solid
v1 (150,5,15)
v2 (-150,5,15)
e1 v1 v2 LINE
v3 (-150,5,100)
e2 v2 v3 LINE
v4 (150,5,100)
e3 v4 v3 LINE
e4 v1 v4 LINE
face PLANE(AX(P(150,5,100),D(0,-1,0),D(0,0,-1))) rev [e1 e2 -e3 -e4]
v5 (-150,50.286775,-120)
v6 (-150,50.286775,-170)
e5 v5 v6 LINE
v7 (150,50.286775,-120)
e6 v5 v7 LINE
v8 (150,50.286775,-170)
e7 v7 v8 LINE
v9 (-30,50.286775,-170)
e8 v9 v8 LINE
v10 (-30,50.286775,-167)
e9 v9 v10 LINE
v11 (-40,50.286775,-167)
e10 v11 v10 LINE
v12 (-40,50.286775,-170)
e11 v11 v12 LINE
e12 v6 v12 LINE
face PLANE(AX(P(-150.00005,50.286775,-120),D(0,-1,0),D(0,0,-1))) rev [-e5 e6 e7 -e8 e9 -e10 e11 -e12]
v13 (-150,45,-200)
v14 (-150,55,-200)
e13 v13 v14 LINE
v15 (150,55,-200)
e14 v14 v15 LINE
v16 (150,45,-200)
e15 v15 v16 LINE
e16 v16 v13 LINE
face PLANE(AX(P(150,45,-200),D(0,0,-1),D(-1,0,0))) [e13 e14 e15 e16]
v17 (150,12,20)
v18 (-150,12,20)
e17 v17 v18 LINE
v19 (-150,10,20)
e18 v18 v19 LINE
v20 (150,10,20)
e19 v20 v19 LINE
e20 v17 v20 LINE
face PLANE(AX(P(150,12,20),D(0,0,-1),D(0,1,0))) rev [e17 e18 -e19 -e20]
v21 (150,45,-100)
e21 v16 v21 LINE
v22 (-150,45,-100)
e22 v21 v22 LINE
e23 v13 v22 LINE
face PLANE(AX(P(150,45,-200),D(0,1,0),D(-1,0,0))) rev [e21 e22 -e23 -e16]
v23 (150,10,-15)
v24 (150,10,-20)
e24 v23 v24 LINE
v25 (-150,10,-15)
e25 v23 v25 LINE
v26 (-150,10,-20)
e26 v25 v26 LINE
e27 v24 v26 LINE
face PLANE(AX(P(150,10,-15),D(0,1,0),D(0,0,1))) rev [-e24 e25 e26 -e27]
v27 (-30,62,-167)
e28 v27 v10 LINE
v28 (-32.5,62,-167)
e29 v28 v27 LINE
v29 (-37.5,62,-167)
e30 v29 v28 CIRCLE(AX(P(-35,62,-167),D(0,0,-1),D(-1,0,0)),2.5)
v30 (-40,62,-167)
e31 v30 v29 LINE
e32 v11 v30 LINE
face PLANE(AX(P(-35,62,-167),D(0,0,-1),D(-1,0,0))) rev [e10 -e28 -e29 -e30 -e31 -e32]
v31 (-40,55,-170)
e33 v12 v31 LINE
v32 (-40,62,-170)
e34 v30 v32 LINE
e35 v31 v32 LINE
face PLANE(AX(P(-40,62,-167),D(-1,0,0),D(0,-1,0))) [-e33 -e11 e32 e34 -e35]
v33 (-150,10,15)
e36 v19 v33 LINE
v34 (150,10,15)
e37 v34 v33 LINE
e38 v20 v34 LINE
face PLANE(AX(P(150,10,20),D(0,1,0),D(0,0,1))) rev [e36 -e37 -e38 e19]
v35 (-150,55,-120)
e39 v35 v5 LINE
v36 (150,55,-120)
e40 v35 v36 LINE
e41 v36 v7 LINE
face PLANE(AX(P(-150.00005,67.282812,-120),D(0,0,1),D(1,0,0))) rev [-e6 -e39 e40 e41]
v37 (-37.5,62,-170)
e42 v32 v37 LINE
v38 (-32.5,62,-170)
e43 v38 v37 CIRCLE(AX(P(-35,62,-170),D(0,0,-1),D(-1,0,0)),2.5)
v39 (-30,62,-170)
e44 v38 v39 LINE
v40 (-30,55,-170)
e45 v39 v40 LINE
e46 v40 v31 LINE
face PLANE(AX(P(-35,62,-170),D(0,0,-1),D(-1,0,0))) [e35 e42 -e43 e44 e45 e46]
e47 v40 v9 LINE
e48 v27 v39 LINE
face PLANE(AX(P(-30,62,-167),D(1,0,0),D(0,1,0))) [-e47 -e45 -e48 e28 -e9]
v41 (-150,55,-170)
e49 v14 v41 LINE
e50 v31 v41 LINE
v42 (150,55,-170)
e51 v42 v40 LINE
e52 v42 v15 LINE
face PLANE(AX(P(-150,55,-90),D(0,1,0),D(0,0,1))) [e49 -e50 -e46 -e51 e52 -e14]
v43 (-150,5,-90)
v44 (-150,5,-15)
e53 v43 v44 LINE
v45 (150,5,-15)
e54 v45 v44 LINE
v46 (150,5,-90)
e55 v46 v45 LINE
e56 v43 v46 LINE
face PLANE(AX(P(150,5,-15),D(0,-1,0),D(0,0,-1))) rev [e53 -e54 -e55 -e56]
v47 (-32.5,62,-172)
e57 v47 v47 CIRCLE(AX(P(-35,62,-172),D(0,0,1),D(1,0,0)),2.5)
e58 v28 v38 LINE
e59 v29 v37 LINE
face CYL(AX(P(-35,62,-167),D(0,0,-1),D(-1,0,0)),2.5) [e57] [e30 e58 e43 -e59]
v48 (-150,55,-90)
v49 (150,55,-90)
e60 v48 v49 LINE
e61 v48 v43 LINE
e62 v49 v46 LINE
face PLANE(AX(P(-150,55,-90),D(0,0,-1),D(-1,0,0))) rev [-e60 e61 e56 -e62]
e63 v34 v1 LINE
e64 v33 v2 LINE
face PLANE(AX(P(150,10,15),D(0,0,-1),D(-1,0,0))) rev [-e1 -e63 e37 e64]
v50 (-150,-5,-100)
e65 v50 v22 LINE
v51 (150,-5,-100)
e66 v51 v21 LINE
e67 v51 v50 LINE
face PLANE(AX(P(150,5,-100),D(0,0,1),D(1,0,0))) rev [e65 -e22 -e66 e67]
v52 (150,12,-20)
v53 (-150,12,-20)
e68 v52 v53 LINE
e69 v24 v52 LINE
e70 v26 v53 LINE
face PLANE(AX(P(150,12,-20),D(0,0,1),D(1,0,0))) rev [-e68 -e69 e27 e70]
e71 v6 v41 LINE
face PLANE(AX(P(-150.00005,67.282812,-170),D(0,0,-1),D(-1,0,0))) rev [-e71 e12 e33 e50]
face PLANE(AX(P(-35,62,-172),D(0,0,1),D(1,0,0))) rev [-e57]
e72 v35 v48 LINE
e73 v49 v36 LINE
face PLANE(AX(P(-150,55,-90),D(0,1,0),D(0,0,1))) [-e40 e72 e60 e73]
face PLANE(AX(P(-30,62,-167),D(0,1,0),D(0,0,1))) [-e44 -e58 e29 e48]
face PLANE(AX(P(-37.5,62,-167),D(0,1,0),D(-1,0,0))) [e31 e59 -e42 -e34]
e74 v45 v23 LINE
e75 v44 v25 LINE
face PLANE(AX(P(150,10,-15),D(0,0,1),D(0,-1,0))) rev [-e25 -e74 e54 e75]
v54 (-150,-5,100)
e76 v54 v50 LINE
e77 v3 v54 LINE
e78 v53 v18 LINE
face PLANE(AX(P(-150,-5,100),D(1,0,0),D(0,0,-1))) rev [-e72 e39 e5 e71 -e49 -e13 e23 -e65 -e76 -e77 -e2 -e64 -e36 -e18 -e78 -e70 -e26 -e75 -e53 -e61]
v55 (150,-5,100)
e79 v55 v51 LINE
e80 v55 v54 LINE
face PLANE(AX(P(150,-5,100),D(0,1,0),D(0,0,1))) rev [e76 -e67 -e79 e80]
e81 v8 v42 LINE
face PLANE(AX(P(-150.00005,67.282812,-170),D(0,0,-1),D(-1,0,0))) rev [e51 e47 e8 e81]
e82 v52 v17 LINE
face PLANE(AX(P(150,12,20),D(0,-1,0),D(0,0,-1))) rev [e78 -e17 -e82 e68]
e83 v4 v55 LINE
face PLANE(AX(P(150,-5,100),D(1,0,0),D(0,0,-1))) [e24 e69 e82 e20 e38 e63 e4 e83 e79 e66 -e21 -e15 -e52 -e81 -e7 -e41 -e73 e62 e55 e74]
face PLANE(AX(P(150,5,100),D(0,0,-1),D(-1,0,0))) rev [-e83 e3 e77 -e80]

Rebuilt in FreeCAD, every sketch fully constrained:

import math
import FreeCAD as App
import Part
import Sketcher

V = App.Vector


def add_polygon(sketch, points):
    """Adds a closed chain of lines whose ends are joined by coincident constraints."""
    first, n = sketch.GeometryCount, len(points)
    for a, b in zip(points, points[1:] + points[:1]):
        sketch.addGeometry(Part.LineSegment(App.Vector(*a, 0), App.Vector(*b, 0)), False)
    for i in range(n):
        sketch.addConstraint(Sketcher.Constraint("Coincident", first + i, 2, first + (i + 1) % n, 1))

doc = App.newDocument("Part")
params = doc.addObject("Spreadsheet::Sheet", "Params")
for row, (alias, value) in enumerate([
    ("sketch1_width", "5 mm"),
    ("sketch1_width2", "2 mm"),
    ("sketch1_width3", "10 mm"),
    ("sketch1_height", "85 mm"),
    ("sketch1_height2", "40 mm"),
    ("pad1_length", "300 mm"),
    ("sketch2_width", "300 mm"),
    ("sketch2_height", "10 mm"),
    ("pad2_length", "50 mm"),
    ("sketch3_width", "300 mm"),
    ("sketch3_height", "10 mm"),
    ("pad3_length", "100 mm"),
    ("sketch4_height", "50 mm"),
    ("sketch5_radius", "2.5 mm"),
    ("sketch5_width", "10 mm"),
    ("sketch5_height", "17 mm"),
    ("pad4_length", "3 mm"),
    ("sketch6_diameter", "5 mm"),
    ("pad5_length", "5 mm"),
], start=1):
    params.set(f"A{row}", alias)
    params.set(f"B{row}", "=" + value)
    params.setAlias(f"B{row}", alias)

body = doc.addObject("PartDesign::Body", "Body")

sketch1 = body.newObject("Sketcher::SketchObject", "Sketch")
sketch1.AttachmentSupport = (doc.getObject("YZ_Plane"), [""])
sketch1.MapMode = "FlatFace"
add_polygon(sketch1, [(5, -100), (5, -15), (10, -15), (10, -20), (12, -20), (12, 20), (10, 20), (10, 15), (5, 15), (5, 100), (-5, 100), (-5, -100)])
sketch1.addConstraint(Sketcher.Constraint("Vertical", 0))
sketch1.addConstraint(Sketcher.Constraint("Horizontal", 1))
sketch1.addConstraint(Sketcher.Constraint("Vertical", 2))
sketch1.addConstraint(Sketcher.Constraint("Horizontal", 3))
sketch1.addConstraint(Sketcher.Constraint("Vertical", 4))
sketch1.addConstraint(Sketcher.Constraint("Horizontal", 5))
sketch1.addConstraint(Sketcher.Constraint("Vertical", 6))
sketch1.addConstraint(Sketcher.Constraint("Horizontal", 7))
sketch1.addConstraint(Sketcher.Constraint("Vertical", 8))
sketch1.addConstraint(Sketcher.Constraint("Horizontal", 9))
sketch1.addConstraint(Sketcher.Constraint("Vertical", 10))
sketch1.addConstraint(Sketcher.Constraint("Horizontal", 11))
sketch1.addConstraint(Sketcher.Constraint("Symmetric", 8, 2, 10, 2, -1, 1))
sketch1.addConstraint(Sketcher.Constraint("Symmetric", 2, 2, 5, 2, -1))
sketch1.addConstraint(Sketcher.Constraint("Symmetric", 0, 2, 7, 2, -1))
sketch1.addConstraint(Sketcher.Constraint("Equal", 7, 2))
sketch1.addConstraint(Sketcher.Constraint("DistanceX", 1, 1, 1, 2, 5.0))
sketch1.addConstraint(Sketcher.Constraint("DistanceX", 3, 1, 3, 2, 2.0))
sketch1.addConstraint(Sketcher.Constraint("DistanceX", 9, 2, 9, 1, 10.0))
sketch1.addConstraint(Sketcher.Constraint("DistanceY", 0, 1, 0, 2, 85.0))
sketch1.addConstraint(Sketcher.Constraint("DistanceY", 4, 1, 4, 2, 40.0))
sketch1.setExpression("Constraints[28]", "Params.sketch1_width")
sketch1.setExpression("Constraints[29]", "Params.sketch1_width2")
sketch1.setExpression("Constraints[30]", "Params.sketch1_width3")
sketch1.setExpression("Constraints[31]", "Params.sketch1_height")
sketch1.setExpression("Constraints[32]", "Params.sketch1_height2")
pad1 = body.newObject("PartDesign::Pad", "Pad")
pad1.Profile = sketch1
pad1.setExpression("Length", "Params.pad1_length")
pad1.Midplane = True

sketch2 = body.newObject("Sketcher::SketchObject", "Sketch001")
sketch2.AttachmentSupport = (doc.getObject("XZ_Plane"), [""])
sketch2.MapMode = "FlatFace"
sketch2.AttachmentOffset = App.Placement(V(0, 0, -5), App.Rotation())
add_polygon(sketch2, [(-150, -100), (-150, -90), (150, -90), (150, -100)])
sketch2.addConstraint(Sketcher.Constraint("Vertical", 0))
sketch2.addConstraint(Sketcher.Constraint("Horizontal", 1))
sketch2.addConstraint(Sketcher.Constraint("Vertical", 2))
sketch2.addConstraint(Sketcher.Constraint("Horizontal", 3))
sketch2.addConstraint(Sketcher.Constraint("DistanceX", 1, 1, 1, 2, 300.0))
sketch2.addConstraint(Sketcher.Constraint("DistanceY", 0, 1, 0, 2, 10.0))
sketch2.addConstraint(Sketcher.Constraint("DistanceX", 0, 2, -1, 1, 150.0))
sketch2.addConstraint(Sketcher.Constraint("DistanceY", 0, 2, -1, 1, 90.0))
sketch2.setExpression("Constraints[8]", "Params.sketch2_width")
sketch2.setExpression("Constraints[9]", "Params.sketch2_height")
pad2 = body.newObject("PartDesign::Pad", "Pad001")
pad2.Profile = sketch2
pad2.setExpression("Length", "Params.pad2_length")
pad2.Reversed = True

sketch3 = body.newObject("Sketcher::SketchObject", "Sketch002")
sketch3.AttachmentSupport = (doc.getObject("XY_Plane"), [""])
sketch3.MapMode = "FlatFace"
sketch3.AttachmentOffset = App.Placement(V(0, 0, -100), App.Rotation())
add_polygon(sketch3, [(150, 55), (150, 45), (-150, 45), (-150, 55)])
sketch3.addConstraint(Sketcher.Constraint("Vertical", 0))
sketch3.addConstraint(Sketcher.Constraint("Horizontal", 1))
sketch3.addConstraint(Sketcher.Constraint("Vertical", 2))
sketch3.addConstraint(Sketcher.Constraint("Horizontal", 3))
sketch3.addConstraint(Sketcher.Constraint("DistanceX", 1, 2, 1, 1, 300.0))
sketch3.addConstraint(Sketcher.Constraint("DistanceY", 0, 2, 0, 1, 10.0))
sketch3.addConstraint(Sketcher.Constraint("DistanceX", -1, 1, 0, 2, 150.0))
sketch3.addConstraint(Sketcher.Constraint("DistanceY", -1, 1, 0, 2, 45.0))
sketch3.setExpression("Constraints[8]", "Params.sketch3_width")
sketch3.setExpression("Constraints[9]", "Params.sketch3_height")
pad3 = body.newObject("PartDesign::Pad", "Pad002")
pad3.Profile = sketch3
pad3.setExpression("Length", "Params.pad3_length")
pad3.Reversed = True

sketch4 = body.newObject("Sketcher::SketchObject", "Sketch003")
sketch4.AttachmentSupport = (doc.getObject("YZ_Plane"), [""])
sketch4.MapMode = "FlatFace"
sketch4.AttachmentOffset = App.Placement(V(0, 0, 150), App.Rotation())
add_polygon(sketch4, [(67.282812, -120), (50.286775, -120), (50.286775, -170), (67.282812, -170)])
sketch4.addConstraint(Sketcher.Constraint("Horizontal", 0))
sketch4.addConstraint(Sketcher.Constraint("Vertical", 1))
sketch4.addConstraint(Sketcher.Constraint("Horizontal", 2))
sketch4.addConstraint(Sketcher.Constraint("Vertical", 3))
sketch4.addConstraint(Sketcher.Constraint("DistanceY", 1, 2, 1, 1, 50.0))
sketch4.addConstraint(Sketcher.Constraint("DistanceY", 0, 2, -1, 1, 120.0))
sketch4.addConstraint(Sketcher.Constraint("DistanceX", 0, 2, 0, 1, 16.996037))
sketch4.addConstraint(Sketcher.Constraint("DistanceX", -1, 1, 0, 2, 50.286775))
sketch4.setExpression("Constraints[8]", "Params.sketch4_height")
pocket1 = body.newObject("PartDesign::Pocket", "Pocket")
pocket1.Profile = sketch4
pocket1.Type = "ThroughAll"

sketch5 = body.newObject("Sketcher::SketchObject", "Sketch004")
sketch5.AttachmentSupport = (doc.getObject("XY_Plane"), [""])
sketch5.MapMode = "FlatFace"
sketch5.AttachmentOffset = App.Placement(V(0, 0, -170), App.Rotation())
sketch5.addGeometry(Part.LineSegment(V(-32.5, 62, 0), V(-30, 62, 0)), False)
sketch5.addGeometry(Part.LineSegment(V(-30, 62, 0), V(-30, 45, 0)), False)
sketch5.addGeometry(Part.LineSegment(V(-30, 45, 0), V(-40, 45, 0)), False)
sketch5.addGeometry(Part.LineSegment(V(-40, 45, 0), V(-40, 62, 0)), False)
sketch5.addGeometry(Part.LineSegment(V(-40, 62, 0), V(-37.5, 62, 0)), False)
sketch5.addGeometry(Part.ArcOfCircle(Part.Circle(V(-35, 62, 0), V(0, 0, 1), 2.5), math.radians(0), math.radians(180)), False)
sketch5.addConstraint(Sketcher.Constraint("Coincident", 0, 2, 1, 1))
sketch5.addConstraint(Sketcher.Constraint("Coincident", 1, 2, 2, 1))
sketch5.addConstraint(Sketcher.Constraint("Coincident", 2, 2, 3, 1))
sketch5.addConstraint(Sketcher.Constraint("Coincident", 3, 2, 4, 1))
sketch5.addConstraint(Sketcher.Constraint("Coincident", 4, 2, 5, 2))
sketch5.addConstraint(Sketcher.Constraint("Coincident", 5, 1, 0, 1))
sketch5.addConstraint(Sketcher.Constraint("Horizontal", 0))
sketch5.addConstraint(Sketcher.Constraint("Vertical", 1))
sketch5.addConstraint(Sketcher.Constraint("Horizontal", 2))
sketch5.addConstraint(Sketcher.Constraint("Vertical", 3))
sketch5.addConstraint(Sketcher.Constraint("Horizontal", 4))
sketch5.addConstraint(Sketcher.Constraint("Horizontal", 5, 3, 0, 2))
sketch5.addConstraint(Sketcher.Constraint("Horizontal", 0, 2, 3, 2))
sketch5.addConstraint(Sketcher.Constraint("Equal", 0, 4))
sketch5.addConstraint(Sketcher.Constraint("Radius", 5, 2.5))
sketch5.addConstraint(Sketcher.Constraint("DistanceX", 2, 2, 2, 1, 10.0))
sketch5.addConstraint(Sketcher.Constraint("DistanceY", 1, 2, 1, 1, 17.0))
sketch5.addConstraint(Sketcher.Constraint("DistanceX", 5, 3, -1, 1, 35.0))
sketch5.addConstraint(Sketcher.Constraint("DistanceY", -1, 1, 5, 3, 62.0))
sketch5.setExpression("Constraints[14]", "Params.sketch5_radius")
sketch5.setExpression("Constraints[15]", "Params.sketch5_width")
sketch5.setExpression("Constraints[16]", "Params.sketch5_height")
pad4 = body.newObject("PartDesign::Pad", "Pad003")
pad4.Profile = sketch5
pad4.setExpression("Length", "Params.pad4_length")

sketch6 = body.newObject("Sketcher::SketchObject", "Sketch005")
sketch6.AttachmentSupport = (doc.getObject("XY_Plane"), [""])
sketch6.MapMode = "FlatFace"
sketch6.AttachmentOffset = App.Placement(V(0, 0, -172), App.Rotation())
sketch6.addGeometry(Part.Circle(V(-35, 62, 0), V(0, 0, 1), 2.5), False)
sketch6.addConstraint(Sketcher.Constraint("Diameter", 0, 5.0))
sketch6.addConstraint(Sketcher.Constraint("DistanceX", 0, 3, -1, 1, 35.0))
sketch6.addConstraint(Sketcher.Constraint("DistanceY", -1, 1, 0, 3, 62.0))
sketch6.setExpression("Constraints[0]", "Params.sketch6_diameter")
pad5 = body.newObject("PartDesign::Pad", "Pad004")
pad5.Profile = sketch6
pad5.setExpression("Length", "Params.pad5_length")

doc.recompute()
